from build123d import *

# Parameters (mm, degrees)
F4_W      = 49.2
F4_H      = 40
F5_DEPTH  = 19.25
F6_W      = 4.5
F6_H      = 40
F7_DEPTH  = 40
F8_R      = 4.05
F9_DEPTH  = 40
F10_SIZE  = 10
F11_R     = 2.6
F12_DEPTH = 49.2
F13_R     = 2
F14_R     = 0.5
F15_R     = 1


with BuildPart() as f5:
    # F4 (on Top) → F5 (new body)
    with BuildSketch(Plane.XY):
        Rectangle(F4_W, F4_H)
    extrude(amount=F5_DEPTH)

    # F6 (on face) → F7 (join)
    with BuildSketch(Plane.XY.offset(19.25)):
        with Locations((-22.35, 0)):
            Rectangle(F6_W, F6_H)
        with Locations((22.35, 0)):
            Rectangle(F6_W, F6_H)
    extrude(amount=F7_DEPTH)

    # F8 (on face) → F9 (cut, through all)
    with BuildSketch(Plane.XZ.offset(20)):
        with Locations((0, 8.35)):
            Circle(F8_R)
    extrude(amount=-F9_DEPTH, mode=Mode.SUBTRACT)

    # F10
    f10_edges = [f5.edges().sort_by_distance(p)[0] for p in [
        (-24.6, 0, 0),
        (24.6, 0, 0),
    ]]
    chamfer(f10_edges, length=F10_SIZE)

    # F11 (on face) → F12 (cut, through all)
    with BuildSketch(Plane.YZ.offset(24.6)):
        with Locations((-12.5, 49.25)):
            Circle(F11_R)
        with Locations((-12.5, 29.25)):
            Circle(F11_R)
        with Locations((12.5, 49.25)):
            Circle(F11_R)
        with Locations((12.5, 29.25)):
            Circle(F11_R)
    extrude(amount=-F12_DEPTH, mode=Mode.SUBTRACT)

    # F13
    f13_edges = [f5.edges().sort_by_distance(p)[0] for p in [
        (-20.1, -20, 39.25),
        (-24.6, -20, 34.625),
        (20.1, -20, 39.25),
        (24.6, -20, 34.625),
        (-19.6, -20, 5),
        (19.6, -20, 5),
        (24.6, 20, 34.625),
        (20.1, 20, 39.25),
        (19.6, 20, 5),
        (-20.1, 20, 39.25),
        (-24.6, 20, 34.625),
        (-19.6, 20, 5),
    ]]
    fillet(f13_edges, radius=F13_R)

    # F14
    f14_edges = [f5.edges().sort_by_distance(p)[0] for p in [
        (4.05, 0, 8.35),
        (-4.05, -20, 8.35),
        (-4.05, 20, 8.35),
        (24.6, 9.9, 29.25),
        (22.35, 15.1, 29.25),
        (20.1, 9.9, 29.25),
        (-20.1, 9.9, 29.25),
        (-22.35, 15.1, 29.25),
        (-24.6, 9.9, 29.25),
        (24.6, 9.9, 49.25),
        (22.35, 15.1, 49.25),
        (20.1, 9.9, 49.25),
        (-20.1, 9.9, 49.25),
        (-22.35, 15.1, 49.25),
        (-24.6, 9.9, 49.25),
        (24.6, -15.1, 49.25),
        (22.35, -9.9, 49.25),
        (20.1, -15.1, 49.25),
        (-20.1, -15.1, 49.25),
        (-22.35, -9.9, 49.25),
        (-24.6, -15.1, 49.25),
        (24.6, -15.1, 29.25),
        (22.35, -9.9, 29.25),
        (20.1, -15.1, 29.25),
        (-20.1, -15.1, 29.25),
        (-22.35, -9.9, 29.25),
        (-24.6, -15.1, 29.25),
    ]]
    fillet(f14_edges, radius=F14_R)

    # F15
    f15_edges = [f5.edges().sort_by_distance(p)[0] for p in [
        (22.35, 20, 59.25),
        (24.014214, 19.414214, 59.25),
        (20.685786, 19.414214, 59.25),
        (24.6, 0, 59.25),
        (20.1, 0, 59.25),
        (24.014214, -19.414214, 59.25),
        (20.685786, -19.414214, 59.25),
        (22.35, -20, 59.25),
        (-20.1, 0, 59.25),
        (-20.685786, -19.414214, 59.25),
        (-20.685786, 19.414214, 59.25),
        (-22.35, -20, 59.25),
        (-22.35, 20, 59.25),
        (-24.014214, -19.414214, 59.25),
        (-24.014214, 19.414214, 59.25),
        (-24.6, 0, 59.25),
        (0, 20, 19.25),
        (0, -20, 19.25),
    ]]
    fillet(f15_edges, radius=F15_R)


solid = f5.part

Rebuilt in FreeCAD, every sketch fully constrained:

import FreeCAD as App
import Part
import Sketcher
Q = App.Units.Quantity


def edges_at(feature, points):
    """Names of the edges that pass closest to the given points."""
    edges = feature.Shape.Edges
    near = lambda p: min(range(len(edges)), key=lambda i: edges[i].distToShape(Part.Vertex(*p))[0])
    return sorted({f"Edge{near(p) + 1}" for p in points})

doc = App.newDocument("Part")
body = doc.addObject("PartDesign::Body", "Body")

sketch1 = doc.addObject("Sketcher::SketchObject", "Sketch")
body.addObject(sketch1)
sketch1.AttachmentSupport = (doc.XY_Plane, [""])
sketch1.MapMode = "FlatFace"
sketch1.addGeometry([
    Part.LineSegment(App.Vector(-24.6, 20, 0), App.Vector(-24.6, -20, 0)),
    Part.LineSegment(App.Vector(-24.6, -20, 0), App.Vector(24.6, -20, 0)),
    Part.LineSegment(App.Vector(24.6, -20, 0), App.Vector(24.6, 20, 0)),
    Part.LineSegment(App.Vector(24.6, 20, 0), App.Vector(-24.6, 20, 0)),
], False)
sketch1.addConstraint([
    Sketcher.Constraint("Coincident", 0, 2, 1, 1),
    Sketcher.Constraint("Coincident", 1, 2, 2, 1),
    Sketcher.Constraint("Coincident", 2, 2, 3, 1),
    Sketcher.Constraint("Coincident", 3, 2, 0, 1),
    Sketcher.Constraint("Vertical", 0),
    Sketcher.Constraint("Horizontal", 1),
    Sketcher.Constraint("Vertical", 2),
    Sketcher.Constraint("Horizontal", 3),
    Sketcher.Constraint("Symmetric", 0, 2, 2, 2, -1, 1),
    Sketcher.Constraint("DistanceY", 0, 2, 0, 1, Q("40 mm")),
    Sketcher.Constraint("DistanceX", 1, 1, 1, 2, Q("49.2 mm")),
])
pad1 = doc.addObject("PartDesign::Pad", "Pad")
body.addObject(pad1)
pad1.Profile = sketch1
pad1.Length = 19.25

sketch2 = doc.addObject("Sketcher::SketchObject", "Sketch001")
body.addObject(sketch2)
sketch2.AttachmentSupport = (doc.XY_Plane, [""])
sketch2.MapMode = "FlatFace"
sketch2.AttachmentOffset = App.Placement(App.Vector(0, 0, 19.25), App.Rotation())
sketch2.addGeometry([
    Part.LineSegment(App.Vector(-24.6, 20, 0), App.Vector(-24.6, -20, 0)),
    Part.LineSegment(App.Vector(-24.6, -20, 0), App.Vector(-20.1, -20, 0)),
    Part.LineSegment(App.Vector(-20.1, -20, 0), App.Vector(-20.1, 20, 0)),
    Part.LineSegment(App.Vector(-20.1, 20, 0), App.Vector(-24.6, 20, 0)),
    Part.LineSegment(App.Vector(20.1, 20, 0), App.Vector(20.1, -20, 0)),
    Part.LineSegment(App.Vector(20.1, -20, 0), App.Vector(24.6, -20, 0)),
    Part.LineSegment(App.Vector(24.6, -20, 0), App.Vector(24.6, 20, 0)),
    Part.LineSegment(App.Vector(24.6, 20, 0), App.Vector(20.1, 20, 0)),
], False)
sketch2.addConstraint([
    Sketcher.Constraint("Coincident", 0, 2, 1, 1),
    Sketcher.Constraint("Coincident", 1, 2, 2, 1),
    Sketcher.Constraint("Coincident", 2, 2, 3, 1),
    Sketcher.Constraint("Coincident", 3, 2, 0, 1),
    Sketcher.Constraint("Coincident", 4, 2, 5, 1),
    Sketcher.Constraint("Coincident", 5, 2, 6, 1),
    Sketcher.Constraint("Coincident", 6, 2, 7, 1),
    Sketcher.Constraint("Coincident", 7, 2, 4, 1),
    Sketcher.Constraint("Vertical", 0),
    Sketcher.Constraint("Horizontal", 1),
    Sketcher.Constraint("Vertical", 2),
    Sketcher.Constraint("Horizontal", 3),
    Sketcher.Constraint("Vertical", 4),
    Sketcher.Constraint("Horizontal", 5),
    Sketcher.Constraint("Vertical", 6),
    Sketcher.Constraint("Horizontal", 7),
    Sketcher.Constraint("Symmetric", 2, 2, 4, 2, -1, 1),
    Sketcher.Constraint("Symmetric", 0, 2, 6, 2, -1, 1),
    Sketcher.Constraint("Horizontal", 1, 2, 4, 2),
    Sketcher.Constraint("DistanceY", 0, 2, 0, 1, Q("40 mm")),
    Sketcher.Constraint("DistanceX", 1, 1, 1, 2, Q("4.5 mm")),
    Sketcher.Constraint("DistanceX", 0, 2, -1, 1, Q("24.6 mm")),
])
pad2 = doc.addObject("PartDesign::Pad", "Pad001")
body.addObject(pad2)
pad2.Profile = sketch2
pad2.Length = 40

sketch3 = doc.addObject("Sketcher::SketchObject", "Sketch002")
body.addObject(sketch3)
sketch3.AttachmentSupport = (doc.XZ_Plane, [""])
sketch3.MapMode = "FlatFace"
sketch3.AttachmentOffset = App.Placement(App.Vector(0, 0, 20), App.Rotation())
sketch3.addGeometry(Part.Circle(App.Vector(0, 8.35, 0), App.Vector(0, 0, 1), 4.05), False)
sketch3.addConstraint([
    Sketcher.Constraint("PointOnObject", 0, 3, -2),
    Sketcher.Constraint("Diameter", 0, Q("8.1 mm")),
    Sketcher.Constraint("DistanceY", -1, 1, 0, 3, Q("8.35 mm")),
])
pocket1 = doc.addObject("PartDesign::Pocket", "Pocket")
body.addObject(pocket1)
pocket1.Profile = sketch3
pocket1.Type = "ThroughAll"
doc.recompute()

chamfer = doc.addObject("PartDesign::Chamfer", "Chamfer")
body.addObject(chamfer)
chamfer.Base = (pocket1, edges_at(pocket1, [(-24.6, 0, 0), (24.6, 0, 0)]))
chamfer.Size = 10

sketch4 = doc.addObject("Sketcher::SketchObject", "Sketch003")
body.addObject(sketch4)
sketch4.AttachmentSupport = (doc.YZ_Plane, [""])
sketch4.MapMode = "FlatFace"
sketch4.AttachmentOffset = App.Placement(App.Vector(0, 0, 24.6), App.Rotation())
sketch4.addGeometry([
    Part.Circle(App.Vector(-12.5, 49.25, 0), App.Vector(0, 0, 1), 2.6),
    Part.Circle(App.Vector(-12.5, 29.25, 0), App.Vector(0, 0, 1), 2.6),
    Part.Circle(App.Vector(12.5, 49.25, 0), App.Vector(0, 0, 1), 2.6),
    Part.Circle(App.Vector(12.5, 29.25, 0), App.Vector(0, 0, 1), 2.6),
], False)
sketch4.addConstraint([
    Sketcher.Constraint("Equal", 0, 1),
    Sketcher.Constraint("Equal", 1, 2),
    Sketcher.Constraint("Equal", 2, 3),
    Sketcher.Constraint("Symmetric", 0, 3, 2, 3, -2),
    Sketcher.Constraint("Symmetric", 1, 3, 3, 3, -2),
    Sketcher.Constraint("Vertical", 0, 3, 1, 3),
    Sketcher.Constraint("Diameter", 0, Q("5.2 mm")),
    Sketcher.Constraint("DistanceY", 1, 3, 0, 3, Q("20 mm")),
    Sketcher.Constraint("DistanceX", 0, 3, 2, 3, Q("25 mm")),
    Sketcher.Constraint("DistanceY", -1, 1, 0, 3, Q("49.25 mm")),
])
pocket2 = doc.addObject("PartDesign::Pocket", "Pocket001")
body.addObject(pocket2)
pocket2.Profile = sketch4
pocket2.Type = "ThroughAll"
doc.recompute()

fillet = doc.addObject("PartDesign::Fillet", "Fillet")
body.addObject(fillet)
fillet.Base = (pocket2, edges_at(pocket2, [
    (-20.1, -20, 39.25),
    (-24.6, -20, 34.625),
    (20.1, -20, 39.25),
    (24.6, -20, 34.625),
    (-19.6, -20, 5),
    (19.6, -20, 5),
    (24.6, 20, 34.625),
    (20.1, 20, 39.25),
    (19.6, 20, 5),
    (-20.1, 20, 39.25),
    (-24.6, 20, 34.625),
    (-19.6, 20, 5),
]))
fillet.Radius = 2
doc.recompute()

fillet2 = doc.addObject("PartDesign::Fillet", "Fillet001")
body.addObject(fillet2)
fillet2.Base = (fillet, edges_at(fillet, [
    (4.05, 0, 8.35),
    (-4.05, -20, 8.35),
    (-4.05, 20, 8.35),
    (24.6, 9.9, 29.25),
    (22.35, 15.1, 29.25),
    (20.1, 9.9, 29.25),
    (-20.1, 9.9, 29.25),
    (-22.35, 15.1, 29.25),
    (-24.6, 9.9, 29.25),
    (24.6, 9.9, 49.25),
    (22.35, 15.1, 49.25),
    (20.1, 9.9, 49.25),
    (-20.1, 9.9, 49.25),
    (-22.35, 15.1, 49.25),
    (-24.6, 9.9, 49.25),
    (24.6, -15.1, 49.25),
    (22.35, -9.9, 49.25),
    (20.1, -15.1, 49.25),
    (-20.1, -15.1, 49.25),
    (-22.35, -9.9, 49.25),
    (-24.6, -15.1, 49.25),
    (24.6, -15.1, 29.25),
    (22.35, -9.9, 29.25),
    (20.1, -15.1, 29.25),
    (-20.1, -15.1, 29.25),
    (-22.35, -9.9, 29.25),
    (-24.6, -15.1, 29.25),
]))
fillet2.Radius = 0.5
doc.recompute()

fillet3 = doc.addObject("PartDesign::Fillet", "Fillet002")
body.addObject(fillet3)
fillet3.Base = (fillet2, edges_at(fillet2, [
    (22.35, 20, 59.25),
    (24.014, 19.414, 59.25),
    (20.686, 19.414, 59.25),
    (24.6, 0, 59.25),
    (20.1, 0, 59.25),
    (24.014, -19.414, 59.25),
    (20.686, -19.414, 59.25),
    (22.35, -20, 59.25),
    (-20.1, 0, 59.25),
    (-20.686, -19.414, 59.25),
    (-20.686, 19.414, 59.25),
    (-22.35, -20, 59.25),
    (-22.35, 20, 59.25),
    (-24.014, -19.414, 59.25),
    (-24.014, 19.414, 59.25),
    (-24.6, 0, 59.25),
    (0, 20, 19.25),
    (0, -20, 19.25),
]))
fillet3.Radius = 1

doc.recompute()
